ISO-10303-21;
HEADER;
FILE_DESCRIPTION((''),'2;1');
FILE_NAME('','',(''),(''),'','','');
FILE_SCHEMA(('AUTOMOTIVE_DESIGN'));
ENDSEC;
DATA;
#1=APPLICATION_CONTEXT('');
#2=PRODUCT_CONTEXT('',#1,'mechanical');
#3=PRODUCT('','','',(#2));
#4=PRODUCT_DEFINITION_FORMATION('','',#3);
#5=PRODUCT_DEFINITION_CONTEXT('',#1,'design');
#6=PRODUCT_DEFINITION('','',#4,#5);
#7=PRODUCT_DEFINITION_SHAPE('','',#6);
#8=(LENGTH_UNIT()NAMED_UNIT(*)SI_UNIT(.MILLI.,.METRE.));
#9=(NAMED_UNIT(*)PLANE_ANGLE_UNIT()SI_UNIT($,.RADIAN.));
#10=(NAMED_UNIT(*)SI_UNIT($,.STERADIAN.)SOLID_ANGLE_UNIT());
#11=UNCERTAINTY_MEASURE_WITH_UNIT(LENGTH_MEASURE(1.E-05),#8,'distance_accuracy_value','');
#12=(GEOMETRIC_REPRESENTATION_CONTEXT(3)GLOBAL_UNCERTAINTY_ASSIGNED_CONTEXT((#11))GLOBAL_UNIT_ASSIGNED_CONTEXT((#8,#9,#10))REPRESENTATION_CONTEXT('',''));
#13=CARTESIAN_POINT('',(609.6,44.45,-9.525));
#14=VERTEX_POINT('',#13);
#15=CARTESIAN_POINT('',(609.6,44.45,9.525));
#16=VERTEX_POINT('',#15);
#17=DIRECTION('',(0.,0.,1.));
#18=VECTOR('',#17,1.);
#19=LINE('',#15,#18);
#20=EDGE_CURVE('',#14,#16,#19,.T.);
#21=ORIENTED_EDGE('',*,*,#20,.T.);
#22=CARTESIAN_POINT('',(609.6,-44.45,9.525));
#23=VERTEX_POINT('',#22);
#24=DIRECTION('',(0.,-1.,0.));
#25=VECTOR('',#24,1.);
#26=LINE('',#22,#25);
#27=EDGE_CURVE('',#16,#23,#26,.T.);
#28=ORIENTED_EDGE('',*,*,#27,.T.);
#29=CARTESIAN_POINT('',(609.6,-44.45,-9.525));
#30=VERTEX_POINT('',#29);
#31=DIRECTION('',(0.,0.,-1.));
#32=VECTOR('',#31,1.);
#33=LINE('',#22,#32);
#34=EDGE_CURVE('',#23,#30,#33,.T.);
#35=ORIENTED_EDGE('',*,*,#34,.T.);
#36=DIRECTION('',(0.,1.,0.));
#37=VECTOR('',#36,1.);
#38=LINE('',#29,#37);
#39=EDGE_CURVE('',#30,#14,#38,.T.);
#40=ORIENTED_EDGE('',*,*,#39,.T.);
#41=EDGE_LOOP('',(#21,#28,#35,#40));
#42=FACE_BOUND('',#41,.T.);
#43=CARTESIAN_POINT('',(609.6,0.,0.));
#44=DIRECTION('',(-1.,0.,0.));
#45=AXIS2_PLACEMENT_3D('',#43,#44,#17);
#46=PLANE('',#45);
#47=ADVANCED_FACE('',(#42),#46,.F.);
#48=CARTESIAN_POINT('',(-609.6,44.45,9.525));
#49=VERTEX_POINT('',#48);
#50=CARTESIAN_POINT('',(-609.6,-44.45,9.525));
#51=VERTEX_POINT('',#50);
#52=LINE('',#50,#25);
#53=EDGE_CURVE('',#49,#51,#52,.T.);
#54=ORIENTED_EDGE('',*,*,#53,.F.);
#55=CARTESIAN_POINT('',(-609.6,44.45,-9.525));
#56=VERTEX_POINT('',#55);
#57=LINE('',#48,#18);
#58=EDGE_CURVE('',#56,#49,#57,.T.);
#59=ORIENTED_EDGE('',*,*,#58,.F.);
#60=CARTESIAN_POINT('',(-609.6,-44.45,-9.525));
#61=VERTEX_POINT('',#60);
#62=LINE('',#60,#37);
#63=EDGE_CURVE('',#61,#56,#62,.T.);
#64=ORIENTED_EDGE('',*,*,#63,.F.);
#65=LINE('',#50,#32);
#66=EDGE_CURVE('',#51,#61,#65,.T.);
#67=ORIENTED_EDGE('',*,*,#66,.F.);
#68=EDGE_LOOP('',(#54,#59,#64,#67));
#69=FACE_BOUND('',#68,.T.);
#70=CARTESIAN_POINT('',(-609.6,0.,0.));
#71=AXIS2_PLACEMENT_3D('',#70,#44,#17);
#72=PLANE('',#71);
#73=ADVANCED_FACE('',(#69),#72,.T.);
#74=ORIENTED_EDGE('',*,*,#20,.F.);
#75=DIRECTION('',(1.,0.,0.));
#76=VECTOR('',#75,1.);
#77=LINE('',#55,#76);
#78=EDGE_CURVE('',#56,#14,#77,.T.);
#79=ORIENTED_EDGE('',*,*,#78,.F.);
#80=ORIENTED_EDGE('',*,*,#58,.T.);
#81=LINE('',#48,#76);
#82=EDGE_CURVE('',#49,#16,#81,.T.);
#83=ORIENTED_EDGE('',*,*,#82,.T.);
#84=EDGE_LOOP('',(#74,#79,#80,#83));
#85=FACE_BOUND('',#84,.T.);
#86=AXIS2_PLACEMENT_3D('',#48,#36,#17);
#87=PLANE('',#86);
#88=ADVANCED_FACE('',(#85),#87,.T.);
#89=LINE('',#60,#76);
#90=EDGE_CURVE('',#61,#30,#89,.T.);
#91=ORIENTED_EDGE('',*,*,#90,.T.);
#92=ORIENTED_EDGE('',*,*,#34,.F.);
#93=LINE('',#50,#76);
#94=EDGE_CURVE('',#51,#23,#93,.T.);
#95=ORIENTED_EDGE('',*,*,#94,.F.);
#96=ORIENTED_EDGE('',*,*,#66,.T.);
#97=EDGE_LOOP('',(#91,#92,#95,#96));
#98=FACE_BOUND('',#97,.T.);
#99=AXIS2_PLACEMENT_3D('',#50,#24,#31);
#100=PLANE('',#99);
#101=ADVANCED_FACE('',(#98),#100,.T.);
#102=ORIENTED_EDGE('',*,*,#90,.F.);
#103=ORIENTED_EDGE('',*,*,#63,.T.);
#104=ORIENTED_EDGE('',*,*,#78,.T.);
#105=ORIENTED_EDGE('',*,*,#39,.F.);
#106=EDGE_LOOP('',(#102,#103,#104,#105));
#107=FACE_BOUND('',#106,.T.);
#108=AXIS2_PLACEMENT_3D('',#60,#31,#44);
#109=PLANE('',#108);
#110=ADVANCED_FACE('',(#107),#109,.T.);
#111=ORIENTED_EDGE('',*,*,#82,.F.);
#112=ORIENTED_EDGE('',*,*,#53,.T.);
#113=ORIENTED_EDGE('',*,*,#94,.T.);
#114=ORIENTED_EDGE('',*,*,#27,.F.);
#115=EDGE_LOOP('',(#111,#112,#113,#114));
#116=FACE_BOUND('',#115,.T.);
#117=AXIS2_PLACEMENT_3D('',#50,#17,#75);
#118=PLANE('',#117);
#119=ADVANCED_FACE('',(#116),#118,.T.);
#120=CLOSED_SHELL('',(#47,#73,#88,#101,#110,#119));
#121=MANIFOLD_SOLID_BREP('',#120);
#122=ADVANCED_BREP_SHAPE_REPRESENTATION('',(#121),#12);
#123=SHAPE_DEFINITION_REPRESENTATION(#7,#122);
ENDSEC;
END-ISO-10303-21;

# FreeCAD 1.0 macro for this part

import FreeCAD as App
import Part
import Sketcher
Q = App.Units.Quantity


def add_polygon(sketch, points):
    """Adds a closed chain of lines whose ends are joined by coincident constraints."""
    first, n = sketch.GeometryCount, len(points)
    for a, b in zip(points, points[1:] + points[:1]):
        sketch.addGeometry(Part.LineSegment(App.Vector(*a, 0), App.Vector(*b, 0)), False)
    for i in range(n):
        sketch.addConstraint(Sketcher.Constraint("Coincident", first + i, 2, first + (i + 1) % n, 1))

doc = App.newDocument("Part")
body = doc.addObject("PartDesign::Body", "Body")

# Sketch on YZ plane
sketch1 = body.newObject("Sketcher::SketchObject", "Sketch")
sketch1.AttachmentSupport = (doc.getObject("YZ_Plane"), [""])
sketch1.MapMode = "FlatFace"
add_polygon(sketch1, [(44.45, 9.525), (-44.45, 9.525), (-44.45, -9.525), (44.45, -9.525)])  # lines 0-3
sketch1.addConstraint(Sketcher.Constraint("Horizontal", 0))
sketch1.addConstraint(Sketcher.Constraint("Vertical", 1))
sketch1.addConstraint(Sketcher.Constraint("Horizontal", 2))
sketch1.addConstraint(Sketcher.Constraint("Vertical", 3))
sketch1.addConstraint(Sketcher.Constraint("Symmetric", 0, 2, 2, 2, -1, 1))
sketch1.addConstraint(Sketcher.Constraint("DistanceX", 0, 2, 0, 1, Q("3.5 in")))
sketch1.addConstraint(Sketcher.Constraint("DistanceY", 1, 2, 1, 1, Q("0.75 in")))
pad1 = body.newObject("PartDesign::Pad", "Pad")
pad1.Profile = sketch1
pad1.Type = "TwoLengths"
pad1.Length = Q("24 in")
pad1.Length2 = Q("24 in")

doc.recompute()
